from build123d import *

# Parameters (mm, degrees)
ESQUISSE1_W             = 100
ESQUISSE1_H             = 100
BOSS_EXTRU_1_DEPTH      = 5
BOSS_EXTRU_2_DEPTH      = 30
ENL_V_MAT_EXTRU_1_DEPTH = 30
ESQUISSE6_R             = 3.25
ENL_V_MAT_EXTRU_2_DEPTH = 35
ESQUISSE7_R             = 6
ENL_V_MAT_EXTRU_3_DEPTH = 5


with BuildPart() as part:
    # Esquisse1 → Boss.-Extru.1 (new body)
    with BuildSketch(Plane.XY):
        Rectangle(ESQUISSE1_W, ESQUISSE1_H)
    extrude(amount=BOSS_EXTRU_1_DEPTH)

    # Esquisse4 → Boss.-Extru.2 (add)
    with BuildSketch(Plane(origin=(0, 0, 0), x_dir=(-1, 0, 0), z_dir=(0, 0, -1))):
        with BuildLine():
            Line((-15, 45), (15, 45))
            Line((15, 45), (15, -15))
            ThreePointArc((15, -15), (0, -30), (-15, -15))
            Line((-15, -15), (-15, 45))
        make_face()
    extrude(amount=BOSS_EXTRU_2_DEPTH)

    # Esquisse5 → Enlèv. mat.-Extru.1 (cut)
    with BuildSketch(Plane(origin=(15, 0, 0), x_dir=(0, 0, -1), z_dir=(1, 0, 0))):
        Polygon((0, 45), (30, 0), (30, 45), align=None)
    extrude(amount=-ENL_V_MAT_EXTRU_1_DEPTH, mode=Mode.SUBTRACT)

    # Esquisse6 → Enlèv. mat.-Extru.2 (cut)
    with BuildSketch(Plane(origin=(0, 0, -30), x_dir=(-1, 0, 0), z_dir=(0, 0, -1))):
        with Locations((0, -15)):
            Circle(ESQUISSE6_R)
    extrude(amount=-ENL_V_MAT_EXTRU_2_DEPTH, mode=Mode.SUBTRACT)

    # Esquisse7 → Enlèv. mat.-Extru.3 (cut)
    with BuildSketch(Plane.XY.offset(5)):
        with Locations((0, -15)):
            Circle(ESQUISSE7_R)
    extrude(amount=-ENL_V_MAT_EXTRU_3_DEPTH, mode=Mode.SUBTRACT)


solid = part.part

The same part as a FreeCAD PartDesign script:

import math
import FreeCAD as App
import Part
import Sketcher

V = App.Vector

doc = App.newDocument("Part")
body = doc.addObject("PartDesign::Body", "Body")

# Sketch on XY plane
sketch1 = body.newObject("Sketcher::SketchObject", "Sketch")
sketch1.AttachmentSupport = (doc.getObject("XY_Plane"), [""])
sketch1.MapMode = "FlatFace"
sketch1.addGeometry([
    Part.LineSegment(V(-50, 50, 0), V(-50, -50, 0)),
    Part.LineSegment(V(-50, -50, 0), V(50, -50, 0)),
    Part.LineSegment(V(50, -50, 0), V(50, 50, 0)),
    Part.LineSegment(V(50, 50, 0), V(-50, 50, 0)),
], False)
sketch1.addConstraint([
    Sketcher.Constraint("Coincident", 0, 2, 1, 1),
    Sketcher.Constraint("Coincident", 1, 2, 2, 1),
    Sketcher.Constraint("Coincident", 2, 2, 3, 1),
    Sketcher.Constraint("Coincident", 3, 2, 0, 1),
    Sketcher.Constraint("Vertical", 0),
    Sketcher.Constraint("Horizontal", 1),
    Sketcher.Constraint("Vertical", 2),
    Sketcher.Constraint("Horizontal", 3),
    Sketcher.Constraint("Symmetric", 0, 2, 2, 2, -1, 1),
    Sketcher.Constraint("Equal", 3, 0),
    Sketcher.Constraint("DistanceX", 1, 1, 1, 2, 100.0),
])
pad1 = body.newObject("PartDesign::Pad", "Pad")
pad1.Profile = sketch1
pad1.Length = 5

# Sketch on XY plane
sketch2 = body.newObject("Sketcher::SketchObject", "Sketch001")
sketch2.AttachmentSupport = (doc.getObject("XY_Plane"), [""])
sketch2.MapMode = "FlatFace"
sketch2.addGeometry([
    Part.LineSegment(V(-15, 45, 0), V(15, 45, 0)),
    Part.LineSegment(V(15, 45, 0), V(15, -15, 0)),
    Part.ArcOfCircle(Part.Circle(V(0, -15, 0), V(0, 0, 1), 15), math.radians(180), math.radians(360)),
    Part.LineSegment(V(-15, -15, 0), V(-15, 45, 0)),
], False)
sketch2.addConstraint([
    Sketcher.Constraint("Coincident", 0, 2, 1, 1),
    Sketcher.Constraint("Tangent", 1, 2, 2, 2),
    Sketcher.Constraint("Tangent", 2, 1, 3, 1),
    Sketcher.Constraint("Coincident", 3, 2, 0, 1),
    Sketcher.Constraint("Horizontal", 0),
    Sketcher.Constraint("Vertical", 1),
    Sketcher.Constraint("Vertical", 3),
    Sketcher.Constraint("PointOnObject", 2, 3, -2),
    Sketcher.Constraint("Radius", 2, 15.0),
    Sketcher.Constraint("DistanceY", 1, 2, 1, 1, 60.0),
    Sketcher.Constraint("DistanceY", 2, 3, -1, 1, 15.0),
])
pad2 = body.newObject("PartDesign::Pad", "Pad001")
pad2.Profile = sketch2
pad2.Length = 30
pad2.Reversed = True

# Sketch on YZ plane
sketch3 = body.newObject("Sketcher::SketchObject", "Sketch002")
sketch3.AttachmentSupport = (doc.getObject("YZ_Plane"), [""])
sketch3.MapMode = "FlatFace"
sketch3.AttachmentOffset = App.Placement(V(0, 0, 15), App.Rotation())
sketch3.addGeometry([
    Part.LineSegment(V(45, 0, 0), V(0, -30, 0)),
    Part.LineSegment(V(0, -30, 0), V(45, -30, 0)),
    Part.LineSegment(V(45, -30, 0), V(45, 0, 0)),
], False)
sketch3.addConstraint([
    Sketcher.Constraint("Coincident", 0, 2, 1, 1),
    Sketcher.Constraint("Coincident", 1, 2, 2, 1),
    Sketcher.Constraint("Coincident", 2, 2, 0, 1),
    Sketcher.Constraint("Horizontal", 1),
    Sketcher.Constraint("Vertical", 2),
    Sketcher.Constraint("PointOnObject", 0, 2, -2),
    Sketcher.Constraint("PointOnObject", 2, 2, -1),
    Sketcher.Constraint("DistanceX", 1, 1, 1, 2, 45.0),
    Sketcher.Constraint("DistanceY", 2, 1, 2, 2, 30.0),
])
pocket1 = body.newObject("PartDesign::Pocket", "Pocket")
pocket1.Profile = sketch3
pocket1.Length = 30

# Sketch on XY plane
sketch4 = body.newObject("Sketcher::SketchObject", "Sketch003")
sketch4.AttachmentSupport = (doc.getObject("XY_Plane"), [""])
sketch4.MapMode = "FlatFace"
sketch4.AttachmentOffset = App.Placement(V(0, 0, -30), App.Rotation())
sketch4.addGeometry(Part.Circle(V(0, -15, 0), V(0, 0, 1), 3.2), False)
sketch4.addConstraint([
    Sketcher.Constraint("PointOnObject", 0, 3, -2),
    Sketcher.Constraint("Diameter", 0, 6.5),
    Sketcher.Constraint("DistanceY", 0, 3, -1, 1, 15.0),
])
pocket2 = body.newObject("PartDesign::Pocket", "Pocket001")
pocket2.Profile = sketch4
pocket2.Length = 35
pocket2.Reversed = True

# Sketch on XY plane
sketch5 = body.newObject("Sketcher::SketchObject", "Sketch004")
sketch5.AttachmentSupport = (doc.getObject("XY_Plane"), [""])
sketch5.MapMode = "FlatFace"
sketch5.AttachmentOffset = App.Placement(V(0, 0, 5), App.Rotation())
sketch5.addGeometry(Part.Circle(V(0, -15, 0), V(0, 0, 1), 6), False)
sketch5.addConstraint([
    Sketcher.Constraint("PointOnObject", 0, 3, -2),
    Sketcher.Constraint("Diameter", 0, 12.0),
    Sketcher.Constraint("DistanceY", 0, 3, -1, 1, 15.0),
])
pocket3 = body.newObject("PartDesign::Pocket", "Pocket002")
pocket3.Profile = sketch5
pocket3.Length = 5

doc.recompute()
